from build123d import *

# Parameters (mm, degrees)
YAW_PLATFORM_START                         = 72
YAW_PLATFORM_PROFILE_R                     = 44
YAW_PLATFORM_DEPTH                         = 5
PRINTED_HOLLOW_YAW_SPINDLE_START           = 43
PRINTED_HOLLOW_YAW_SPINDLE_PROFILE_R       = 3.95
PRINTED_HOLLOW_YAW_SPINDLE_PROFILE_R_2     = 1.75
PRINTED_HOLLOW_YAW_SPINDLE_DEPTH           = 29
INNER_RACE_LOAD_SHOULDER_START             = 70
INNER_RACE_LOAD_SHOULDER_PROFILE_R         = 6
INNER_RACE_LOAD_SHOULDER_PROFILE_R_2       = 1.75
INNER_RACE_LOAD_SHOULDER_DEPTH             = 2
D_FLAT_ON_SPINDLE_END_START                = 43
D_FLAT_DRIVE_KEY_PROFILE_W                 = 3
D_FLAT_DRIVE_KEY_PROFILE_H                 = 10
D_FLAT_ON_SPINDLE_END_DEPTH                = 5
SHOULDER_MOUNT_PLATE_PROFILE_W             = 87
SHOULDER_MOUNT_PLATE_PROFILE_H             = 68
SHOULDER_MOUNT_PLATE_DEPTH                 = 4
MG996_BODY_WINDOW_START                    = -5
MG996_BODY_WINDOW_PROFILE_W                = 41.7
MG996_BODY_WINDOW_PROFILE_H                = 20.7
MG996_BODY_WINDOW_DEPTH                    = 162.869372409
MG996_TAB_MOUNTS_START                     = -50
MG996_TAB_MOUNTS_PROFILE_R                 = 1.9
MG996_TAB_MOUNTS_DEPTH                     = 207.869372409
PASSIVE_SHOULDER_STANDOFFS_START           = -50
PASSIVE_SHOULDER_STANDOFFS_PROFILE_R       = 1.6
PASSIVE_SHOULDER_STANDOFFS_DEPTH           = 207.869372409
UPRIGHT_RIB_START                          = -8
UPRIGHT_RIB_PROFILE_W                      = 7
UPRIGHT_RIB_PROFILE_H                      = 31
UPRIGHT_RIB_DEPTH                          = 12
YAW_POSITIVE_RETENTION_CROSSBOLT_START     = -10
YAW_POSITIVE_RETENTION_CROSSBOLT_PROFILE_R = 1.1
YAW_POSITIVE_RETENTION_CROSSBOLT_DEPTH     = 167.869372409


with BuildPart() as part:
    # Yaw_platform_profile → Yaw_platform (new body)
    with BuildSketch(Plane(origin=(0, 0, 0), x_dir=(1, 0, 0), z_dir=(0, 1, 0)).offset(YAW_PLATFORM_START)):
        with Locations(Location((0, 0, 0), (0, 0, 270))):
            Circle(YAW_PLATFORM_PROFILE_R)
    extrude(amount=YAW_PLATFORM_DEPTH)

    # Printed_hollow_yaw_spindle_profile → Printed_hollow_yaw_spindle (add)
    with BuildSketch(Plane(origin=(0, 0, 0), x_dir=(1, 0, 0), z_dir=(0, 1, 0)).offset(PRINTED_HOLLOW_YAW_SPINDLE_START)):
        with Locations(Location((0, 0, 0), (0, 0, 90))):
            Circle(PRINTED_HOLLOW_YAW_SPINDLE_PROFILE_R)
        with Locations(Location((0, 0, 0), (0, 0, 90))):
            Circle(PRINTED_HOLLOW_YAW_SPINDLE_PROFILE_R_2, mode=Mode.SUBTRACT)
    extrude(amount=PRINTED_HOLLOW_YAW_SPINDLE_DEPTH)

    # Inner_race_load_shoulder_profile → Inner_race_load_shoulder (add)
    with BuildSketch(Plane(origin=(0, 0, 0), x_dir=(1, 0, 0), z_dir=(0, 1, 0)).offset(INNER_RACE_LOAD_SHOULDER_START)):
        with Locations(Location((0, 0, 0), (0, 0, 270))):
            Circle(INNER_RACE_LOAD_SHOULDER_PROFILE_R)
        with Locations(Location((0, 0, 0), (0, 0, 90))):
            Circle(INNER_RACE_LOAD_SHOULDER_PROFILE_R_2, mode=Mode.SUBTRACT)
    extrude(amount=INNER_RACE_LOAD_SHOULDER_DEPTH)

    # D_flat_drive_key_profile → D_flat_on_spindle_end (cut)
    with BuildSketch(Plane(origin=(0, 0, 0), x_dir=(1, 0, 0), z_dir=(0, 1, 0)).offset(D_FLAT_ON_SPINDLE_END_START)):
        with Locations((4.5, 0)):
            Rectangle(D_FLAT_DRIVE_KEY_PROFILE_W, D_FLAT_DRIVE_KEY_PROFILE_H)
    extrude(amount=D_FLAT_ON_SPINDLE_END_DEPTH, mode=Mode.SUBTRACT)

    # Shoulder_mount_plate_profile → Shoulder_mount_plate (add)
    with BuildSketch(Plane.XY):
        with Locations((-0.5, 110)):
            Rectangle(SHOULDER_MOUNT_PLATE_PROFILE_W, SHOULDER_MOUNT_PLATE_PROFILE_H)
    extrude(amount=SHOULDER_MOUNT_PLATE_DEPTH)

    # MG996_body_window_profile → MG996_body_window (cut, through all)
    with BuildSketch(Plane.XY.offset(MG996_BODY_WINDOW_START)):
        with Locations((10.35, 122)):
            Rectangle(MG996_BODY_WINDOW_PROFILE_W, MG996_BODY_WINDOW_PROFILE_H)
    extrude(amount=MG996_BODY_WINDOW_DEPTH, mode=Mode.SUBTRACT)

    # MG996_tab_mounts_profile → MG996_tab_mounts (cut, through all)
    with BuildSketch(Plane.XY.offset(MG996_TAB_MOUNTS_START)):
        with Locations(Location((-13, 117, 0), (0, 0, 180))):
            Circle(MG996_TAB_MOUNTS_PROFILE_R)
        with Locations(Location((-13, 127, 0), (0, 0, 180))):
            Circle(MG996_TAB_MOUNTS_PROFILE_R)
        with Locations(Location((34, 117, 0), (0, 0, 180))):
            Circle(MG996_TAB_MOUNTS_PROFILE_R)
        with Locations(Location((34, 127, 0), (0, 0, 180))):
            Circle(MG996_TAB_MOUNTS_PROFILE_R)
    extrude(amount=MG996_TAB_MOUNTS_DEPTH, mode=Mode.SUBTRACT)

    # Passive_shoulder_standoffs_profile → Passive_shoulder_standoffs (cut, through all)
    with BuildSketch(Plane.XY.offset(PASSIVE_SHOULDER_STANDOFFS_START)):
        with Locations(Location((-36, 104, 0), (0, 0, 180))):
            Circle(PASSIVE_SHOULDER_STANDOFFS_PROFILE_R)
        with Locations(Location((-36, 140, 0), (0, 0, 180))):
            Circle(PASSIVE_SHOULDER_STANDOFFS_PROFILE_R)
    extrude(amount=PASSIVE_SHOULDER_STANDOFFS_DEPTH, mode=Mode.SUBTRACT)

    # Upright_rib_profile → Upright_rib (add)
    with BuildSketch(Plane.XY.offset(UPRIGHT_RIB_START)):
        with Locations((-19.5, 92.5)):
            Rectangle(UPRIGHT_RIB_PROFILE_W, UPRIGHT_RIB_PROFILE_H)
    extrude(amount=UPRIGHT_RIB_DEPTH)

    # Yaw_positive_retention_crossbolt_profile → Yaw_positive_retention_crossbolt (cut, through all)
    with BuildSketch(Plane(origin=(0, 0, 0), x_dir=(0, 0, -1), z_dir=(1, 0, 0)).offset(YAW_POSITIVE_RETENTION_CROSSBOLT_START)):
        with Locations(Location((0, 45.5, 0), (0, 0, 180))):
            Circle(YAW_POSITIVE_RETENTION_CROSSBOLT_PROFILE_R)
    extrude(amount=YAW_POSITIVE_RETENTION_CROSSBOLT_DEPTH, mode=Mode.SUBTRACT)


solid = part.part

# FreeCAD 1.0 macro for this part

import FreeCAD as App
import Part
import Sketcher
Q = App.Units.Quantity

doc = App.newDocument("Part")
body = doc.addObject("PartDesign::Body", "Body")

sketch1 = body.newObject("Sketcher::SketchObject", "Sketch")
sketch1.AttachmentSupport = (doc.getObject("XZ_Plane"), [""])
sketch1.MapMode = "FlatFace"
sketch1.AttachmentOffset = App.Placement(App.Vector(0, 0, -72), App.Rotation())
sketch1.addGeometry(Part.Circle(App.Vector(0, 0, 0), App.Vector(0, 0, 1), 44), False)
sketch1.addConstraint([
    Sketcher.Constraint("Coincident", 0, 3, -1, 1),
    Sketcher.Constraint("Diameter", 0, Q("88 mm")),
])
pad1 = body.newObject("PartDesign::Pad", "Pad")
pad1.Profile = sketch1
pad1.Length = 5
pad1.Reversed = True

sketch2 = body.newObject("Sketcher::SketchObject", "Sketch001")
sketch2.AttachmentSupport = (doc.getObject("XZ_Plane"), [""])
sketch2.MapMode = "FlatFace"
sketch2.AttachmentOffset = App.Placement(App.Vector(0, 0, -43), App.Rotation())
sketch2.addGeometry([
    Part.Circle(App.Vector(0, 0, 0), App.Vector(0, 0, 1), 4),
    Part.Circle(App.Vector(0, 0, 0), App.Vector(0, 0, 1), 1.8),
], False)
sketch2.addConstraint([
    Sketcher.Constraint("Coincident", 0, 3, -1, 1),
    Sketcher.Constraint("Coincident", 1, 3, -1, 1),
    Sketcher.Constraint("Diameter", 0, Q("7.9 mm")),
    Sketcher.Constraint("Diameter", 1, Q("3.5 mm")),
])
pad2 = body.newObject("PartDesign::Pad", "Pad001")
pad2.Profile = sketch2
pad2.Length = 29
pad2.Reversed = True

sketch3 = body.newObject("Sketcher::SketchObject", "Sketch002")
sketch3.AttachmentSupport = (doc.getObject("XZ_Plane"), [""])
sketch3.MapMode = "FlatFace"
sketch3.AttachmentOffset = App.Placement(App.Vector(0, 0, -70), App.Rotation())
sketch3.addGeometry([
    Part.Circle(App.Vector(0, 0, 0), App.Vector(0, 0, 1), 6),
    Part.Circle(App.Vector(0, 0, 0), App.Vector(0, 0, 1), 1.8),
], False)
sketch3.addConstraint([
    Sketcher.Constraint("Coincident", 0, 3, -1, 1),
    Sketcher.Constraint("Coincident", 1, 3, -1, 1),
    Sketcher.Constraint("Diameter", 0, Q("12 mm")),
    Sketcher.Constraint("Diameter", 1, Q("3.5 mm")),
])
pad3 = body.newObject("PartDesign::Pad", "Pad002")
pad3.Profile = sketch3
pad3.Length = 2
pad3.Reversed = True

sketch4 = body.newObject("Sketcher::SketchObject", "Sketch003")
sketch4.AttachmentSupport = (doc.getObject("XZ_Plane"), [""])
sketch4.MapMode = "FlatFace"
sketch4.AttachmentOffset = App.Placement(App.Vector(0, 0, -43), App.Rotation())
sketch4.addGeometry([
    Part.LineSegment(App.Vector(3, -5, 0), App.Vector(3, 5, 0)),
    Part.LineSegment(App.Vector(3, 5, 0), App.Vector(6, 5, 0)),
    Part.LineSegment(App.Vector(6, 5, 0), App.Vector(6, -5, 0)),
    Part.LineSegment(App.Vector(6, -5, 0), App.Vector(3, -5, 0)),
], False)
sketch4.addConstraint([
    Sketcher.Constraint("Coincident", 0, 2, 1, 1),
    Sketcher.Constraint("Coincident", 1, 2, 2, 1),
    Sketcher.Constraint("Coincident", 2, 2, 3, 1),
    Sketcher.Constraint("Coincident", 3, 2, 0, 1),
    Sketcher.Constraint("Vertical", 0),
    Sketcher.Constraint("Horizontal", 1),
    Sketcher.Constraint("Vertical", 2),
    Sketcher.Constraint("Horizontal", 3),
    Sketcher.Constraint("DistanceX", 1, 1, 1, 2, Q("3 mm")),
    Sketcher.Constraint("DistanceY", 0, 1, 0, 2, Q("10 mm")),
    Sketcher.Constraint("DistanceX", -1, 1, 0, 2, Q("3 mm")),
    Sketcher.Constraint("DistanceY", -1, 1, 0, 2, Q("5 mm")),
])
pocket1 = body.newObject("PartDesign::Pocket", "Pocket")
pocket1.Profile = sketch4
pocket1.Length = 5

sketch5 = body.newObject("Sketcher::SketchObject", "Sketch004")
sketch5.AttachmentSupport = (doc.getObject("XY_Plane"), [""])
sketch5.MapMode = "FlatFace"
sketch5.addGeometry([
    Part.LineSegment(App.Vector(-44, 144, 0), App.Vector(-44, 76, 0)),
    Part.LineSegment(App.Vector(-44, 76, 0), App.Vector(43, 76, 0)),
    Part.LineSegment(App.Vector(43, 76, 0), App.Vector(43, 144, 0)),
    Part.LineSegment(App.Vector(43, 144, 0), App.Vector(-44, 144, 0)),
], False)
sketch5.addConstraint([
    Sketcher.Constraint("Coincident", 0, 2, 1, 1),
    Sketcher.Constraint("Coincident", 1, 2, 2, 1),
    Sketcher.Constraint("Coincident", 2, 2, 3, 1),
    Sketcher.Constraint("Coincident", 3, 2, 0, 1),
    Sketcher.Constraint("Vertical", 0),
    Sketcher.Constraint("Horizontal", 1),
    Sketcher.Constraint("Vertical", 2),
    Sketcher.Constraint("Horizontal", 3),
    Sketcher.Constraint("DistanceX", 1, 1, 1, 2, Q("87 mm")),
    Sketcher.Constraint("DistanceY", 0, 2, 0, 1, Q("68 mm")),
    Sketcher.Constraint("DistanceX", 0, 2, -1, 1, Q("44 mm")),
    Sketcher.Constraint("DistanceY", -1, 1, 0, 2, Q("76 mm")),
])
pad4 = body.newObject("PartDesign::Pad", "Pad003")
pad4.Profile = sketch5
pad4.Length = 4

sketch6 = body.newObject("Sketcher::SketchObject", "Sketch005")
sketch6.AttachmentSupport = (doc.getObject("XY_Plane"), [""])
sketch6.MapMode = "FlatFace"
sketch6.AttachmentOffset = App.Placement(App.Vector(0, 0, -5), App.Rotation())
sketch6.addGeometry([
    Part.LineSegment(App.Vector(-10, 132, 0), App.Vector(-10, 112, 0)),
    Part.LineSegment(App.Vector(-10, 112, 0), App.Vector(31, 112, 0)),
    Part.LineSegment(App.Vector(31, 112, 0), App.Vector(31, 132, 0)),
    Part.LineSegment(App.Vector(31, 132, 0), App.Vector(-10, 132, 0)),
], False)
sketch6.addConstraint([
    Sketcher.Constraint("Coincident", 0, 2, 1, 1),
    Sketcher.Constraint("Coincident", 1, 2, 2, 1),
    Sketcher.Constraint("Coincident", 2, 2, 3, 1),
    Sketcher.Constraint("Coincident", 3, 2, 0, 1),
    Sketcher.Constraint("Vertical", 0),
    Sketcher.Constraint("Horizontal", 1),
    Sketcher.Constraint("Vertical", 2),
    Sketcher.Constraint("Horizontal", 3),
    Sketcher.Constraint("DistanceX", 1, 1, 1, 2, Q("41.7 mm")),
    Sketcher.Constraint("DistanceY", 0, 2, 0, 1, Q("20.7 mm")),
    Sketcher.Constraint("DistanceX", 0, 2, -1, 1, Q("10.5 mm")),
    Sketcher.Constraint("DistanceY", -1, 1, 0, 2, Q("111.65 mm")),
])
pocket2 = body.newObject("PartDesign::Pocket", "Pocket001")
pocket2.Profile = sketch6
pocket2.Type = "ThroughAll"
pocket2.Reversed = True

sketch7 = body.newObject("Sketcher::SketchObject", "Sketch006")
sketch7.AttachmentSupport = (doc.getObject("XY_Plane"), [""])
sketch7.MapMode = "FlatFace"
sketch7.AttachmentOffset = App.Placement(App.Vector(0, 0, -50), App.Rotation())
sketch7.addGeometry([
    Part.Circle(App.Vector(-13, 117, 0), App.Vector(0, 0, 1), 1.9),
    Part.Circle(App.Vector(-13, 127, 0), App.Vector(0, 0, 1), 1.9),
    Part.Circle(App.Vector(34, 117, 0), App.Vector(0, 0, 1), 1.9),
    Part.Circle(App.Vector(34, 127, 0), App.Vector(0, 0, 1), 1.9),
], False)
sketch7.addConstraint([
    Sketcher.Constraint("Equal", 0, 1),
    Sketcher.Constraint("Equal", 1, 2),
    Sketcher.Constraint("Equal", 2, 3),
    Sketcher.Constraint("Horizontal", 0, 3, 2, 3),
    Sketcher.Constraint("Horizontal", 1, 3, 3, 3),
    Sketcher.Constraint("Vertical", 0, 3, 1, 3),
    Sketcher.Constraint("Vertical", 2, 3, 3, 3),
    Sketcher.Constraint("Diameter", 0, Q("3.8 mm")),
    Sketcher.Constraint("DistanceX", 0, 3, -1, 1, Q("13 mm")),
    Sketcher.Constraint("DistanceY", -1, 1, 0, 3, Q("117 mm")),
    Sketcher.Constraint("DistanceY", -1, 1, 1, 3, Q("127 mm")),
    Sketcher.Constraint("DistanceX", -1, 1, 2, 3, Q("34 mm")),
])
pocket3 = body.newObject("PartDesign::Pocket", "Pocket002")
pocket3.Profile = sketch7
pocket3.Type = "ThroughAll"
pocket3.Reversed = True

sketch8 = body.newObject("Sketcher::SketchObject", "Sketch007")
sketch8.AttachmentSupport = (doc.getObject("XY_Plane"), [""])
sketch8.MapMode = "FlatFace"
sketch8.AttachmentOffset = App.Placement(App.Vector(0, 0, -50), App.Rotation())
sketch8.addGeometry([
    Part.Circle(App.Vector(-36, 104, 0), App.Vector(0, 0, 1), 1.6),
    Part.Circle(App.Vector(-36, 140, 0), App.Vector(0, 0, 1), 1.6),
], False)
sketch8.addConstraint([
    Sketcher.Constraint("Equal", 0, 1),
    Sketcher.Constraint("Vertical", 0, 3, 1, 3),
    Sketcher.Constraint("Diameter", 0, Q("3.2 mm")),
    Sketcher.Constraint("DistanceX", 0, 3, -1, 1, Q("36 mm")),
    Sketcher.Constraint("DistanceY", -1, 1, 0, 3, Q("104 mm")),
    Sketcher.Constraint("DistanceY", -1, 1, 1, 3, Q("140 mm")),
])
pocket4 = body.newObject("PartDesign::Pocket", "Pocket003")
pocket4.Profile = sketch8
pocket4.Type = "ThroughAll"
pocket4.Reversed = True

sketch9 = body.newObject("Sketcher::SketchObject", "Sketch008")
sketch9.AttachmentSupport = (doc.getObject("XY_Plane"), [""])
sketch9.MapMode = "FlatFace"
sketch9.AttachmentOffset = App.Placement(App.Vector(0, 0, -8), App.Rotation())
sketch9.addGeometry([
    Part.LineSegment(App.Vector(-23, 108, 0), App.Vector(-23, 77, 0)),
    Part.LineSegment(App.Vector(-23, 77, 0), App.Vector(-16, 77, 0)),
    Part.LineSegment(App.Vector(-16, 77, 0), App.Vector(-16, 108, 0)),
    Part.LineSegment(App.Vector(-16, 108, 0), App.Vector(-23, 108, 0)),
], False)
sketch9.addConstraint([
    Sketcher.Constraint("Coincident", 0, 2, 1, 1),
    Sketcher.Constraint("Coincident", 1, 2, 2, 1),
    Sketcher.Constraint("Coincident", 2, 2, 3, 1),
    Sketcher.Constraint("Coincident", 3, 2, 0, 1),
    Sketcher.Constraint("Vertical", 0),
    Sketcher.Constraint("Horizontal", 1),
    Sketcher.Constraint("Vertical", 2),
    Sketcher.Constraint("Horizontal", 3),
    Sketcher.Constraint("DistanceX", 1, 1, 1, 2, Q("7 mm")),
    Sketcher.Constraint("DistanceY", 0, 2, 0, 1, Q("31 mm")),
    Sketcher.Constraint("DistanceX", 0, 2, -1, 1, Q("23 mm")),
    Sketcher.Constraint("DistanceY", -1, 1, 0, 2, Q("77 mm")),
])
pad5 = body.newObject("PartDesign::Pad", "Pad004")
pad5.Profile = sketch9
pad5.Length = 12

sketch10 = body.newObject("Sketcher::SketchObject", "Sketch009")
sketch10.AttachmentSupport = (doc.getObject("YZ_Plane"), [""])
sketch10.MapMode = "FlatFace"
sketch10.AttachmentOffset = App.Placement(App.Vector(0, 0, -10), App.Rotation())
sketch10.addGeometry(Part.Circle(App.Vector(45.5, 0, 0), App.Vector(0, 0, 1), 1.1), False)
sketch10.addConstraint([
    Sketcher.Constraint("PointOnObject", 0, 3, -1),
    Sketcher.Constraint("Diameter", 0, Q("2.2 mm")),
    Sketcher.Constraint("DistanceX", -1, 1, 0, 3, Q("45.5 mm")),
])
pocket5 = body.newObject("PartDesign::Pocket", "Pocket004")
pocket5.Profile = sketch10
pocket5.Type = "ThroughAll"
pocket5.Reversed = True

doc.recompute()
